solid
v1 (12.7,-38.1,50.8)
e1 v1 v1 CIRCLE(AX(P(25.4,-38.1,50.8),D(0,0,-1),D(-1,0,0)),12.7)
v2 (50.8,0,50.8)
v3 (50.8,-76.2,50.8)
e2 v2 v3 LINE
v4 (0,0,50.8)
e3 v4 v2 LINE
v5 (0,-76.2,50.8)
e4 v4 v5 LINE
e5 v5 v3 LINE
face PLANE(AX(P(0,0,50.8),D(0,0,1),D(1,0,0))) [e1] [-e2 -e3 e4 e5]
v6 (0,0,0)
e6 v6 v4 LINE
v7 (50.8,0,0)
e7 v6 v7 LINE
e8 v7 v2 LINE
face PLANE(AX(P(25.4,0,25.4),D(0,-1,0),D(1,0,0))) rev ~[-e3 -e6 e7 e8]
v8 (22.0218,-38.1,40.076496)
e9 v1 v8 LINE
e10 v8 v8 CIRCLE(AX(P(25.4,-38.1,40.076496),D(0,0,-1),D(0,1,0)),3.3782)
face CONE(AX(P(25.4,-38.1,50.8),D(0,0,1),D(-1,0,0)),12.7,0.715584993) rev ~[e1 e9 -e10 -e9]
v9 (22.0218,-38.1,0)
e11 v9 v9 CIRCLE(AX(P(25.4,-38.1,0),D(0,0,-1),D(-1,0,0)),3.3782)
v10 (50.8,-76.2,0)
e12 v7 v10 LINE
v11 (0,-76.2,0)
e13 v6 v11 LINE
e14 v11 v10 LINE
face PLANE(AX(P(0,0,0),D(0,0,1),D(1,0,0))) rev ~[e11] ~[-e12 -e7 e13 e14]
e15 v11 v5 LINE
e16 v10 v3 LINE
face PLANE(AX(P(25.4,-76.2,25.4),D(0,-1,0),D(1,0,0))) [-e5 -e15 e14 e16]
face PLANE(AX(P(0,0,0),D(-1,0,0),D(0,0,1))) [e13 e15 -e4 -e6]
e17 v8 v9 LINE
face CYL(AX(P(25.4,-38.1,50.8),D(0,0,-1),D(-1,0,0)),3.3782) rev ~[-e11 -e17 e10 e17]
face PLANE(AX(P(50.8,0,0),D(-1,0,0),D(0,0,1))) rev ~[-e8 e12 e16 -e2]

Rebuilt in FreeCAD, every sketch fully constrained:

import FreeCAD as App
import Part
import Sketcher

V = App.Vector
Q = App.Units.Quantity


def add_polygon(sketch, points):
    """Adds a closed chain of lines whose ends are joined by coincident constraints."""
    first, n = sketch.GeometryCount, len(points)
    for a, b in zip(points, points[1:] + points[:1]):
        sketch.addGeometry(Part.LineSegment(App.Vector(*a, 0), App.Vector(*b, 0)), False)
    for i in range(n):
        sketch.addConstraint(Sketcher.Constraint("Coincident", first + i, 2, first + (i + 1) % n, 1))

doc = App.newDocument("Part")
body = doc.addObject("PartDesign::Body", "Body")

sketch1 = doc.addObject("Sketcher::SketchObject", "Sketch")
body.addObject(sketch1)
sketch1.AttachmentSupport = (doc.XZ_Plane, [""])
sketch1.MapMode = "FlatFace"
add_polygon(sketch1, [(0, 51), (0, 0), (51, 0), (51, 51)])
sketch1.addConstraint([
    Sketcher.Constraint("Vertical", 0),
    Sketcher.Constraint("Horizontal", 1),
    Sketcher.Constraint("Vertical", 2),
    Sketcher.Constraint("Horizontal", 3),
    Sketcher.Constraint("Coincident", 0, 2, -1, 1),
    Sketcher.Constraint("Equal", 3, 0),
    Sketcher.Constraint("DistanceX", 1, 1, 1, 2, Q("2 in")),
])
pad1 = doc.addObject("PartDesign::Pad", "Pad")
body.addObject(pad1)
pad1.Profile = sketch1
pad1.Length = Q("3 in")

sketch2 = doc.addObject("Sketcher::SketchObject", "Sketch001")
body.addObject(sketch2)
sketch2.AttachmentSupport = (doc.XY_Plane, [""])
sketch2.MapMode = "FlatFace"
sketch2.AttachmentOffset = App.Placement(V(0, 0, 2 * 25.4), App.Rotation())
sketch2.addGeometry(Part.Circle(V(25.4, -38.1, 0), V(0, 0, 1), 3.4), False)
sketch2.addConstraint([
    Sketcher.Constraint("Diameter", 0, Q("0.266 in")),
    Sketcher.Constraint("DistanceX", -1, 1, 0, 3, Q("1 in")),
    Sketcher.Constraint("DistanceY", 0, 3, -1, 1, Q("1.5 in")),
])
doc.recompute()
hole = doc.addObject("PartDesign::Hole", "Hole")
body.addObject(hole)
hole.Profile = sketch2
hole.ThreadType = "None"
hole.Diameter = Q("0.266 in")
hole.DepthType = "ThroughAll"
hole.HoleCutType = "Countersink"
hole.HoleCutDiameter = Q("1 in")
hole.HoleCutCountersinkAngle = 82

doc.recompute()
